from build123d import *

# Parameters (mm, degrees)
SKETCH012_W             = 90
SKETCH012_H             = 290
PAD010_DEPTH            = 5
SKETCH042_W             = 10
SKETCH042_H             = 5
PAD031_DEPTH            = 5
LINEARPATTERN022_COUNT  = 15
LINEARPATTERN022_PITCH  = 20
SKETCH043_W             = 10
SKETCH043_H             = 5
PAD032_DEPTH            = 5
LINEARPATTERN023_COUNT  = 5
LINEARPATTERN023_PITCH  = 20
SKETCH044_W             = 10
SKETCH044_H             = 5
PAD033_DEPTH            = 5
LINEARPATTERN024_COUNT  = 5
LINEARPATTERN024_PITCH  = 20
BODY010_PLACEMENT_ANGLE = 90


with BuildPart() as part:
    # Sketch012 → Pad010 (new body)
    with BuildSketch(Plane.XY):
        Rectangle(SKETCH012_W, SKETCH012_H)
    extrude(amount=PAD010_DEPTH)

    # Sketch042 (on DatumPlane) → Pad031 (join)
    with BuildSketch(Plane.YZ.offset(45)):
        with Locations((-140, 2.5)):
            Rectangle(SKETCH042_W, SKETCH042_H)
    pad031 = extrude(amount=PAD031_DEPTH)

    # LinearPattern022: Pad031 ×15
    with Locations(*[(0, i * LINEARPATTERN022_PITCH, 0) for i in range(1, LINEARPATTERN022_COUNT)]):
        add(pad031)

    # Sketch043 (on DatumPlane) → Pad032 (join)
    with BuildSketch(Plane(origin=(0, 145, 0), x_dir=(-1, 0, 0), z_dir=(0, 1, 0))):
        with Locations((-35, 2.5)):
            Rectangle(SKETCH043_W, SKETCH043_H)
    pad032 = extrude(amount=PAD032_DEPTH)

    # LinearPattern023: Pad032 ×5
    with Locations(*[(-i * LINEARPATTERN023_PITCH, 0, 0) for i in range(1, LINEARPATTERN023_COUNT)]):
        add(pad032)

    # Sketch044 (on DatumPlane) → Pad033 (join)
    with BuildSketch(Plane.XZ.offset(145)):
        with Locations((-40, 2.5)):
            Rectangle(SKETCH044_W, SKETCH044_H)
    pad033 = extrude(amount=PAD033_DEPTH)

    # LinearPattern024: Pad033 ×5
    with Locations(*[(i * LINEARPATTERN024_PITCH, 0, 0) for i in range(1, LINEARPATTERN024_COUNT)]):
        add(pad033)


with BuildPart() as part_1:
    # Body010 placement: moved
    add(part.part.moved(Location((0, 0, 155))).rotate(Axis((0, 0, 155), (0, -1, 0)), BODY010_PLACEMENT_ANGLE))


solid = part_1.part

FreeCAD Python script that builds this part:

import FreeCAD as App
import Part
import Sketcher

V = App.Vector
Q = App.Units.Quantity


def add_polygon(sketch, points):
    """Adds a closed chain of lines whose ends are joined by coincident constraints."""
    first, n = sketch.GeometryCount, len(points)
    for a, b in zip(points, points[1:] + points[:1]):
        sketch.addGeometry(Part.LineSegment(App.Vector(*a, 0), App.Vector(*b, 0)), False)
    for i in range(n):
        sketch.addConstraint(Sketcher.Constraint("Coincident", first + i, 2, first + (i + 1) % n, 1))

doc = App.newDocument("Part")
body = doc.addObject("PartDesign::Body", "Body")

# Sketch on XY plane
sketch1 = body.newObject("Sketcher::SketchObject", "Sketch")
sketch1.AttachmentSupport = (doc.getObject("XY_Plane"), [""])
sketch1.MapMode = "FlatFace"
add_polygon(sketch1, [(-45, 145), (-45, -145), (45, -145), (45, 145)])  # lines 0-3
sketch1.addConstraint([
    Sketcher.Constraint("Vertical", 0),
    Sketcher.Constraint("Horizontal", 1),
    Sketcher.Constraint("Vertical", 2),
    Sketcher.Constraint("Horizontal", 3),
    Sketcher.Constraint("Symmetric", 0, 2, 2, 2, -1, 1),
    Sketcher.Constraint("DistanceX", 1, 1, 1, 2, Q("90 mm")),
    Sketcher.Constraint("DistanceY", 0, 2, 0, 1, Q("290 mm")),
])
pad1 = body.newObject("PartDesign::Pad", "Pad")
pad1.Profile = sketch1
pad1.Length = 5

# Sketch on YZ plane
sketch2 = body.newObject("Sketcher::SketchObject", "Sketch001")
sketch2.AttachmentSupport = (doc.getObject("YZ_Plane"), [""])
sketch2.MapMode = "FlatFace"
sketch2.AttachmentOffset = App.Placement(V(0, 0, 45), App.Rotation())
add_polygon(sketch2, [(-145, 5), (-145, 0), (-135, 0), (-135, 5)])  # lines 0-3
sketch2.addConstraint([
    Sketcher.Constraint("Vertical", 0),
    Sketcher.Constraint("Horizontal", 1),
    Sketcher.Constraint("Vertical", 2),
    Sketcher.Constraint("Horizontal", 3),
    Sketcher.Constraint("PointOnObject", 0, 2, -1),
    Sketcher.Constraint("DistanceX", 1, 1, 1, 2, Q("10 mm")),
    Sketcher.Constraint("DistanceY", 0, 2, 0, 1, Q("5 mm")),
    Sketcher.Constraint("DistanceX", 0, 2, -1, 1, Q("145 mm")),
])
pad2 = body.newObject("PartDesign::Pad", "Pad001")
pad2.Profile = sketch2
pad2.Length = 5
doc.recompute()

linearpattern = body.newObject("PartDesign::LinearPattern", "LinearPattern")
linearpattern.Originals = [pad2]
linearpattern.Direction = (doc.getObject("Y_Axis"), [""])
linearpattern.Mode = "offset"
linearpattern.Offset = 20
linearpattern.Occurrences = 15
body.Tip = linearpattern

# Sketch on XZ plane
sketch3 = body.newObject("Sketcher::SketchObject", "Sketch002")
sketch3.AttachmentSupport = (doc.getObject("XZ_Plane"), [""])
sketch3.MapMode = "FlatFace"
sketch3.AttachmentOffset = App.Placement(V(0, 0, -145), App.Rotation())
add_polygon(sketch3, [(40, 5), (40, 0), (30, 0), (30, 5)])  # lines 0-3
sketch3.addConstraint([
    Sketcher.Constraint("Vertical", 0),
    Sketcher.Constraint("Horizontal", 1),
    Sketcher.Constraint("Vertical", 2),
    Sketcher.Constraint("Horizontal", 3),
    Sketcher.Constraint("PointOnObject", 0, 2, -1),
    Sketcher.Constraint("DistanceX", 1, 2, 1, 1, Q("10 mm")),
    Sketcher.Constraint("DistanceY", 0, 2, 0, 1, Q("5 mm")),
    Sketcher.Constraint("DistanceX", -1, 1, 0, 2, Q("40 mm")),
])
pad3 = body.newObject("PartDesign::Pad", "Pad002")
pad3.Profile = sketch3
pad3.Length = 5
pad3.Reversed = True
doc.recompute()

linearpattern2 = body.newObject("PartDesign::LinearPattern", "LinearPattern001")
linearpattern2.Originals = [pad3]
linearpattern2.Direction = (doc.getObject("X_Axis"), [""])
linearpattern2.Mode = "offset"
linearpattern2.Offset = 20
linearpattern2.Occurrences = 5
linearpattern2.Reversed = True
body.Tip = linearpattern2

# Sketch on XZ plane
sketch4 = body.newObject("Sketcher::SketchObject", "Sketch003")
sketch4.AttachmentSupport = (doc.getObject("XZ_Plane"), [""])
sketch4.MapMode = "FlatFace"
sketch4.AttachmentOffset = App.Placement(V(0, 0, 145), App.Rotation())
add_polygon(sketch4, [(-45, 5), (-45, 0), (-35, 0), (-35, 5)])  # lines 0-3
sketch4.addConstraint([
    Sketcher.Constraint("Vertical", 0),
    Sketcher.Constraint("Horizontal", 1),
    Sketcher.Constraint("Vertical", 2),
    Sketcher.Constraint("Horizontal", 3),
    Sketcher.Constraint("PointOnObject", 0, 2, -1),
    Sketcher.Constraint("DistanceX", 1, 1, 1, 2, Q("10 mm")),
    Sketcher.Constraint("DistanceY", 0, 2, 0, 1, Q("5 mm")),
    Sketcher.Constraint("DistanceX", 0, 2, -1, 1, Q("45 mm")),
])
pad4 = body.newObject("PartDesign::Pad", "Pad003")
pad4.Profile = sketch4
pad4.Length = 5
doc.recompute()

linearpattern3 = body.newObject("PartDesign::LinearPattern", "LinearPattern002")
linearpattern3.Originals = [pad4]
linearpattern3.Direction = (doc.getObject("X_Axis"), [""])
linearpattern3.Mode = "offset"
linearpattern3.Offset = 20
linearpattern3.Occurrences = 5
body.Tip = linearpattern3
body2 = doc.addObject("PartDesign::Body", "Body001")
doc.recompute()

body.Placement = App.Placement(V(0, 0, 155), App.Rotation(V(0, -1, 0), 90))
boolean = body2.newObject("PartDesign::Boolean", "Boolean")
boolean.Type = "Fuse"
boolean.addObjects([body])

doc.recompute()
